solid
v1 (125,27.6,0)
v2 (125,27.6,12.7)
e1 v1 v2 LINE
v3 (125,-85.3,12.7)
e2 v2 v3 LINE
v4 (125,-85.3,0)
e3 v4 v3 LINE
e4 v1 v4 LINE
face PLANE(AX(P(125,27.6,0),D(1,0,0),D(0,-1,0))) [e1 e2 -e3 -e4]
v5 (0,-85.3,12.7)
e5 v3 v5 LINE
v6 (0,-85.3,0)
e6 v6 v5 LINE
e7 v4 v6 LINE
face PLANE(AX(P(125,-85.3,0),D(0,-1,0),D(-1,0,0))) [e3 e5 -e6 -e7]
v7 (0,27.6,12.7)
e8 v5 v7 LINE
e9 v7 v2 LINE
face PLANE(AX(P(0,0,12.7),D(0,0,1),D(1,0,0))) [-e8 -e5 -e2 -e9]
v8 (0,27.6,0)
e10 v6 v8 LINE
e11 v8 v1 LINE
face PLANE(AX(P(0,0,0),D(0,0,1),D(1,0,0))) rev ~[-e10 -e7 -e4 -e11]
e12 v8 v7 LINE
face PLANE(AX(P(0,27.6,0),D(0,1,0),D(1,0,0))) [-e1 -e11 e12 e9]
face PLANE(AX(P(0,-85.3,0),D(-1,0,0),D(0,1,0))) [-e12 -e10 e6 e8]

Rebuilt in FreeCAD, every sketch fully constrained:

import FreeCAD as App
import Part
import Sketcher
from FreeCAD import Vector
Q = App.Units.Quantity

doc = App.newDocument("Part")
body = doc.addObject("PartDesign::Body", "Body")

# Sketch on XY plane
sketch1 = body.newObject("Sketcher::SketchObject", "Sketch")
sketch1.AttachmentSupport = (doc.getObject("XY_Plane"), [""])
sketch1.MapMode = "FlatFace"
sketch1.addGeometry([
    Part.LineSegment(Vector(125, 28, 0), Vector(0, 28, 0)),
    Part.LineSegment(Vector(0, 28, 0), Vector(0, -85, 0)),
    Part.LineSegment(Vector(0, -85, 0), Vector(125, -85, 0)),
    Part.LineSegment(Vector(125, -85, 0), Vector(125, 28, 0)),
], False)
sketch1.addConstraint([
    Sketcher.Constraint("Coincident", 0, 2, 1, 1),
    Sketcher.Constraint("Coincident", 1, 2, 2, 1),
    Sketcher.Constraint("Coincident", 2, 2, 3, 1),
    Sketcher.Constraint("Coincident", 3, 2, 0, 1),
    Sketcher.Constraint("Horizontal", 0),
    Sketcher.Constraint("Vertical", 1),
    Sketcher.Constraint("Horizontal", 2),
    Sketcher.Constraint("Vertical", 3),
    Sketcher.Constraint("PointOnObject", 0, 2, -2),
    Sketcher.Constraint("DistanceX", 0, 2, 0, 1, Q("125 mm")),
    Sketcher.Constraint("DistanceY", 1, 2, 1, 1, Q("112.9 mm")),
    Sketcher.Constraint("DistanceY", -1, 1, 0, 2, Q("27.6 mm")),
])
pad1 = body.newObject("PartDesign::Pad", "Pad")
pad1.Profile = sketch1
pad1.Length = 12.7

doc.recompute()
